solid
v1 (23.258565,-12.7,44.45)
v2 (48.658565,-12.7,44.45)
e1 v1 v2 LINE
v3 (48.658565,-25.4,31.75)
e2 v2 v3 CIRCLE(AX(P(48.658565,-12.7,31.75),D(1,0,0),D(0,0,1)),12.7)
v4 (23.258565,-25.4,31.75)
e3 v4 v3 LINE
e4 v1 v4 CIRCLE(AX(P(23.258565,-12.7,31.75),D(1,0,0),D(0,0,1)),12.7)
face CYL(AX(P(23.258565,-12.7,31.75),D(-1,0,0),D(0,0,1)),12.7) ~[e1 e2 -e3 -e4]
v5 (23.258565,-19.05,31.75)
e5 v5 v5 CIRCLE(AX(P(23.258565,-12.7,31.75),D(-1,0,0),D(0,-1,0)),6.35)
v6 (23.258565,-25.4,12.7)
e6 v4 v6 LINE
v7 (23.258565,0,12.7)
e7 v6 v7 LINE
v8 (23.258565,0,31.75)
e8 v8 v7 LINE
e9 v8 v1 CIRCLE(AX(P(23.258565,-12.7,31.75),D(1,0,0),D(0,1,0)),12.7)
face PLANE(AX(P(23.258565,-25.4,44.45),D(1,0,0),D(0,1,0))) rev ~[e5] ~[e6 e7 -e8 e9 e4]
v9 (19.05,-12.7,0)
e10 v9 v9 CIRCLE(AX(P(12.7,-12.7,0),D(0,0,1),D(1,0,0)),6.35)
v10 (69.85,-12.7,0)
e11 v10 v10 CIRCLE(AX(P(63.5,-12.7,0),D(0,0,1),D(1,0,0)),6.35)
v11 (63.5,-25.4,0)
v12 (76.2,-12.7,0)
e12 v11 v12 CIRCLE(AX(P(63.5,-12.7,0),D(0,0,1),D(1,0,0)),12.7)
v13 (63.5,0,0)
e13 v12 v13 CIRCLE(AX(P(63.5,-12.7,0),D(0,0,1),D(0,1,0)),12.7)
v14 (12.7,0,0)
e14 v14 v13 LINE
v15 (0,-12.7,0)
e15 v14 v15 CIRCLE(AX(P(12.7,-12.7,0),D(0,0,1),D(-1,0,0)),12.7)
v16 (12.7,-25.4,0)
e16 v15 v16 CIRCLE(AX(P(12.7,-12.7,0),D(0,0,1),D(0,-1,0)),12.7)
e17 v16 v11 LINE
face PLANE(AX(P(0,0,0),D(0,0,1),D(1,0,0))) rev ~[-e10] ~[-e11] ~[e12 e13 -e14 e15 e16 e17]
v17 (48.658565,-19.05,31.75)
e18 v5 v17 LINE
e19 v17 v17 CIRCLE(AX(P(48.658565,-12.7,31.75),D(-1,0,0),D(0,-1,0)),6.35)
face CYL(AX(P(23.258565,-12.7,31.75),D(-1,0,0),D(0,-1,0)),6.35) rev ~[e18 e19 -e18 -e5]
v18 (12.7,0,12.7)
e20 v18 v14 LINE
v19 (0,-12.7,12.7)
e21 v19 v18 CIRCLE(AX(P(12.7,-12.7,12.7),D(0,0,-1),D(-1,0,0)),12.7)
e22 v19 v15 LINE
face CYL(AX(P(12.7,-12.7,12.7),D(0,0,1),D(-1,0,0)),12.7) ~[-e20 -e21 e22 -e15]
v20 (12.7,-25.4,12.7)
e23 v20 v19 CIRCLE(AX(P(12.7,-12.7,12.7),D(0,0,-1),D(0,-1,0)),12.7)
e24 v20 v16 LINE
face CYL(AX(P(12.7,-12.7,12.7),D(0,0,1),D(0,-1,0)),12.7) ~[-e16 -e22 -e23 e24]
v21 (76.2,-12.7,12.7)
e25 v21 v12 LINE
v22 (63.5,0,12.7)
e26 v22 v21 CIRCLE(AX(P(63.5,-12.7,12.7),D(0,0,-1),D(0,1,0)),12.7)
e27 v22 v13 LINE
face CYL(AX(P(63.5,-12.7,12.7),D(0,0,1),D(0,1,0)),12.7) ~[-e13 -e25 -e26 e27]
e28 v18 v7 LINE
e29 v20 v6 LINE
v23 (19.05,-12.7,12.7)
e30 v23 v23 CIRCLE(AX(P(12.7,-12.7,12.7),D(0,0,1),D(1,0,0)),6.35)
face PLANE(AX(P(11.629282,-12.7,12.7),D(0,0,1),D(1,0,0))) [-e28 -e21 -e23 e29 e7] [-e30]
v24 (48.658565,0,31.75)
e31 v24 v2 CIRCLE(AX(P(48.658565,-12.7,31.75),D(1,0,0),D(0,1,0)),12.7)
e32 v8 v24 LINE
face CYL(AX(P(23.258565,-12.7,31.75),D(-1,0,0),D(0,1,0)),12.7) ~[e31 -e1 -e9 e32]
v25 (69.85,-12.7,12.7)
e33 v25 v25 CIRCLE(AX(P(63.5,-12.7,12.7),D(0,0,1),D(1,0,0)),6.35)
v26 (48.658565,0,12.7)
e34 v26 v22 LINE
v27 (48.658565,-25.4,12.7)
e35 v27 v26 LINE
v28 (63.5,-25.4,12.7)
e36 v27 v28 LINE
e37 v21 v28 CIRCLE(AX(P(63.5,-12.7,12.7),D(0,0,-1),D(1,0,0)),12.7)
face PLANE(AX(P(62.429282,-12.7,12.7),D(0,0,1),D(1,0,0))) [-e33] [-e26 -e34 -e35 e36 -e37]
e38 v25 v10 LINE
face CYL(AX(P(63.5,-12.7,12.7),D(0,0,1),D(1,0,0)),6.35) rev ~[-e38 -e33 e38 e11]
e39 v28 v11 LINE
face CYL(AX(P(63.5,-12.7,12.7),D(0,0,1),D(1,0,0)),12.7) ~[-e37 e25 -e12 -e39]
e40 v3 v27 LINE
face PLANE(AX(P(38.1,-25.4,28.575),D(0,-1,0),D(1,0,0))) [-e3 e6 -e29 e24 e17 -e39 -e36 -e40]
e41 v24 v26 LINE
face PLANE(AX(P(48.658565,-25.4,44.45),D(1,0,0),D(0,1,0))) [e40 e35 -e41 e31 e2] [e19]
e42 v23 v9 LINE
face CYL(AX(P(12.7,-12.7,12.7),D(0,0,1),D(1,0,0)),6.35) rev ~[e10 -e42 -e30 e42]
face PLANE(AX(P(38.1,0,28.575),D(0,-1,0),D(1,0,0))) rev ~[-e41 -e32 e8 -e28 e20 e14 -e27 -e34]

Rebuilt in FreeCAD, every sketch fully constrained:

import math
import FreeCAD as App
import Part
import Sketcher
Q = App.Units.Quantity


def add_polygon(sketch, points):
    """Adds a closed chain of lines whose ends are joined by coincident constraints."""
    first, n = sketch.GeometryCount, len(points)
    for a, b in zip(points, points[1:] + points[:1]):
        sketch.addGeometry(Part.LineSegment(App.Vector(*a, 0), App.Vector(*b, 0)), False)
    for i in range(n):
        sketch.addConstraint(Sketcher.Constraint("Coincident", first + i, 2, first + (i + 1) % n, 1))

doc = App.newDocument("Part")
body = doc.addObject("PartDesign::Body", "Body")

# Sketch on XZ plane
sketch1 = doc.addObject("Sketcher::SketchObject", "Sketch")
body.addObject(sketch1)
sketch1.AttachmentSupport = (doc.XZ_Plane, [""])
sketch1.MapMode = "FlatFace"
add_polygon(sketch1, [(0, 57), (0, 0), (76, 0), (76, 57)])  # lines 0-3
sketch1.addConstraint(Sketcher.Constraint("Vertical", 0))
sketch1.addConstraint(Sketcher.Constraint("Horizontal", 1))
sketch1.addConstraint(Sketcher.Constraint("Vertical", 2))
sketch1.addConstraint(Sketcher.Constraint("Horizontal", 3))
sketch1.addConstraint(Sketcher.Constraint("Coincident", 0, 2, -1, 1))
sketch1.addConstraint(Sketcher.Constraint("DistanceX", 1, 1, 1, 2, Q("3 in")))
sketch1.addConstraint(Sketcher.Constraint("DistanceY", 0, 2, 0, 1, Q("2.25 in")))
pad1 = doc.addObject("PartDesign::Pad", "Pad")
body.addObject(pad1)
pad1.Profile = sketch1
pad1.Length = Q("1 in")

# Sketch on XZ plane
sketch2 = doc.addObject("Sketcher::SketchObject", "Sketch001")
body.addObject(sketch2)
sketch2.AttachmentSupport = (doc.XZ_Plane, [""])
sketch2.MapMode = "FlatFace"
sketch2.AttachmentOffset = App.Placement(App.Vector(0, 0, 1 * 25.4), App.Rotation())
add_polygon(sketch2, [(0, 57), (0, 44), (76, 44), (76, 57)])  # lines 0-3
sketch2.addConstraint(Sketcher.Constraint("Vertical", 0))
sketch2.addConstraint(Sketcher.Constraint("Horizontal", 1))
sketch2.addConstraint(Sketcher.Constraint("Vertical", 2))
sketch2.addConstraint(Sketcher.Constraint("Horizontal", 3))
sketch2.addConstraint(Sketcher.Constraint("PointOnObject", 0, 2, -2))
sketch2.addConstraint(Sketcher.Constraint("DistanceX", 1, 1, 1, 2, Q("3 in")))
sketch2.addConstraint(Sketcher.Constraint("DistanceY", 0, 2, 0, 1, Q("0.5 in")))
sketch2.addConstraint(Sketcher.Constraint("DistanceY", -1, 1, 0, 2, Q("1.75 in")))
pocket1 = doc.addObject("PartDesign::Pocket", "Pocket")
body.addObject(pocket1)
pocket1.Profile = sketch2
pocket1.Length = Q("1 in")

# Sketch on XY plane
sketch3 = doc.addObject("Sketcher::SketchObject", "Sketch002")
body.addObject(sketch3)
sketch3.AttachmentSupport = (doc.XY_Plane, [""])
sketch3.MapMode = "FlatFace"
sketch3.AttachmentOffset = App.Placement(App.Vector(0, 0, 1.75 * 25.4), App.Rotation())
add_polygon(sketch3, [(0, 0), (0, -25), (23, -25), (23, 0)])  # lines 0-3
add_polygon(sketch3, [(49, 0), (49, -25), (76, -25), (76, 0)])  # lines 4-7
sketch3.addConstraint(Sketcher.Constraint("Vertical", 0))
sketch3.addConstraint(Sketcher.Constraint("Horizontal", 1))
sketch3.addConstraint(Sketcher.Constraint("Vertical", 2))
sketch3.addConstraint(Sketcher.Constraint("Horizontal", 3))
sketch3.addConstraint(Sketcher.Constraint("Vertical", 4))
sketch3.addConstraint(Sketcher.Constraint("Horizontal", 5))
sketch3.addConstraint(Sketcher.Constraint("Vertical", 6))
sketch3.addConstraint(Sketcher.Constraint("Horizontal", 7))
sketch3.addConstraint(Sketcher.Constraint("Coincident", 3, 2, -1, 1))
sketch3.addConstraint(Sketcher.Constraint("PointOnObject", 6, 2, -1))
sketch3.addConstraint(Sketcher.Constraint("Horizontal", 1, 2, 4, 2))
sketch3.addConstraint(Sketcher.Constraint("DistanceY", 0, 2, 0, 1, Q("1 in")))
sketch3.addConstraint(Sketcher.Constraint("DistanceX", -1, 1, 5, 2, Q("3 in")))
sketch3.addConstraint(Sketcher.Constraint("DistanceX", 1, 2, 4, 2, Q("1 in")))
sketch3.addConstraint(Sketcher.Constraint("DistanceX", 1, 1, 1, 2, 23.258565))
pocket2 = doc.addObject("PartDesign::Pocket", "Pocket001")
body.addObject(pocket2)
pocket2.Profile = sketch3
pocket2.Length = Q("1.25 in")

# Sketch on XY plane
sketch4 = doc.addObject("Sketcher::SketchObject", "Sketch003")
body.addObject(sketch4)
sketch4.AttachmentSupport = (doc.XY_Plane, [""])
sketch4.MapMode = "FlatFace"
sketch4.AttachmentOffset = App.Placement(App.Vector(0, 0, 0.5 * 25.4), App.Rotation())
sketch4.addGeometry(Part.ArcOfCircle(Part.Circle(App.Vector(64, -13, 0), App.Vector(0, 0, 1), 13), math.radians(0), math.radians(90)), False)
sketch4.addGeometry(Part.LineSegment(App.Vector(76, -13, 0), App.Vector(76, 0, 0)), False)
sketch4.addGeometry(Part.LineSegment(App.Vector(76, 0, 0), App.Vector(64, 0, 0)), False)
sketch4.addGeometry(Part.ArcOfCircle(Part.Circle(App.Vector(64, -13, 0), App.Vector(0, 0, 1), 13), math.radians(-90), math.radians(0)), False)
sketch4.addGeometry(Part.LineSegment(App.Vector(64, -25, 0), App.Vector(76, -25, 0)), False)
sketch4.addGeometry(Part.LineSegment(App.Vector(76, -25, 0), App.Vector(76, -13, 0)), False)
sketch4.addGeometry(Part.Circle(App.Vector(64, -13, 0), App.Vector(0, 0, 1), 6), False)
sketch4.addConstraint(Sketcher.Constraint("Tangent", 0, 1, 1, 1))
sketch4.addConstraint(Sketcher.Constraint("Coincident", 1, 2, 2, 1))
sketch4.addConstraint(Sketcher.Constraint("Tangent", 2, 2, 0, 2))
sketch4.addConstraint(Sketcher.Constraint("Tangent", 3, 1, 4, 1))
sketch4.addConstraint(Sketcher.Constraint("Coincident", 4, 2, 5, 1))
sketch4.addConstraint(Sketcher.Constraint("Tangent", 5, 2, 3, 2))
sketch4.addConstraint(Sketcher.Constraint("Vertical", 1))
sketch4.addConstraint(Sketcher.Constraint("Horizontal", 2))
sketch4.addConstraint(Sketcher.Constraint("Horizontal", 4))
sketch4.addConstraint(Sketcher.Constraint("Vertical", 5))
sketch4.addConstraint(Sketcher.Constraint("Coincident", 3, 3, 0, 3))
sketch4.addConstraint(Sketcher.Constraint("Coincident", 6, 3, 0, 3))
sketch4.addConstraint(Sketcher.Constraint("Equal", 0, 3))
sketch4.addConstraint(Sketcher.Constraint("PointOnObject", 1, 2, -1))
sketch4.addConstraint(Sketcher.Constraint("Diameter", 6, Q("0.5 in")))
sketch4.addConstraint(Sketcher.Constraint("Radius", 0, Q("0.5 in")))
sketch4.addConstraint(Sketcher.Constraint("DistanceX", -1, 1, 0, 1, Q("3 in")))
pocket3 = doc.addObject("PartDesign::Pocket", "Pocket002")
body.addObject(pocket3)
pocket3.Profile = sketch4
pocket3.Length = Q("1 in")

# Sketch on XY plane
sketch5 = doc.addObject("Sketcher::SketchObject", "Sketch004")
body.addObject(sketch5)
sketch5.AttachmentSupport = (doc.XY_Plane, [""])
sketch5.MapMode = "FlatFace"
sketch5.AttachmentOffset = App.Placement(App.Vector(0, 0, 0.5 * 25.4), App.Rotation())
sketch5.addGeometry(Part.ArcOfCircle(Part.Circle(App.Vector(13, -13, 0), App.Vector(0, 0, 1), 13), math.radians(180), math.radians(270)), False)
sketch5.addGeometry(Part.LineSegment(App.Vector(0, -13, 0), App.Vector(0, -25, 0)), False)
sketch5.addGeometry(Part.LineSegment(App.Vector(0, -25, 0), App.Vector(13, -25, 0)), False)
sketch5.addGeometry(Part.ArcOfCircle(Part.Circle(App.Vector(13, -13, 0), App.Vector(0, 0, 1), 13), math.radians(90), math.radians(180)), False)
sketch5.addGeometry(Part.LineSegment(App.Vector(13, 0, 0), App.Vector(0, 0, 0)), False)
sketch5.addGeometry(Part.LineSegment(App.Vector(0, 0, 0), App.Vector(0, -13, 0)), False)
sketch5.addGeometry(Part.Circle(App.Vector(13, -13, 0), App.Vector(0, 0, 1), 6), False)
sketch5.addConstraint(Sketcher.Constraint("Tangent", 0, 1, 1, 1))
sketch5.addConstraint(Sketcher.Constraint("Coincident", 1, 2, 2, 1))
sketch5.addConstraint(Sketcher.Constraint("Tangent", 2, 2, 0, 2))
sketch5.addConstraint(Sketcher.Constraint("Tangent", 3, 1, 4, 1))
sketch5.addConstraint(Sketcher.Constraint("Coincident", 4, 2, 5, 1))
sketch5.addConstraint(Sketcher.Constraint("Tangent", 5, 2, 3, 2))
sketch5.addConstraint(Sketcher.Constraint("Vertical", 1))
sketch5.addConstraint(Sketcher.Constraint("Horizontal", 2))
sketch5.addConstraint(Sketcher.Constraint("Horizontal", 4))
sketch5.addConstraint(Sketcher.Constraint("Vertical", 5))
sketch5.addConstraint(Sketcher.Constraint("Coincident", 4, 2, -1, 1))
sketch5.addConstraint(Sketcher.Constraint("Coincident", 3, 3, 0, 3))
sketch5.addConstraint(Sketcher.Constraint("Coincident", 6, 3, 0, 3))
sketch5.addConstraint(Sketcher.Constraint("Equal", 0, 3))
sketch5.addConstraint(Sketcher.Constraint("Diameter", 6, Q("0.5 in")))
sketch5.addConstraint(Sketcher.Constraint("Radius", 0, Q("0.5 in")))
pocket4 = doc.addObject("PartDesign::Pocket", "Pocket003")
body.addObject(pocket4)
pocket4.Profile = sketch5
pocket4.Length = Q("1 in")

# Sketch on YZ plane
sketch6 = doc.addObject("Sketcher::SketchObject", "Sketch005")
body.addObject(sketch6)
sketch6.AttachmentSupport = (doc.YZ_Plane, [""])
sketch6.MapMode = "FlatFace"
sketch6.AttachmentOffset = App.Placement(App.Vector(0, 0, 23.258565), App.Rotation())
sketch6.addGeometry(Part.ArcOfCircle(Part.Circle(App.Vector(-13, 32, 0), App.Vector(0, 0, 1), 13), math.radians(0), math.radians(90)), False)
sketch6.addGeometry(Part.LineSegment(App.Vector(-13, 44, 0), App.Vector(0, 44, 0)), False)
sketch6.addGeometry(Part.LineSegment(App.Vector(0, 44, 0), App.Vector(0, 32, 0)), False)
sketch6.addGeometry(Part.ArcOfCircle(Part.Circle(App.Vector(-13, 32, 0), App.Vector(0, 0, 1), 13), math.radians(90), math.radians(180)), False)
sketch6.addGeometry(Part.LineSegment(App.Vector(-25, 32, 0), App.Vector(-25, 44, 0)), False)
sketch6.addGeometry(Part.LineSegment(App.Vector(-25, 44, 0), App.Vector(-13, 44, 0)), False)
sketch6.addGeometry(Part.Circle(App.Vector(-13, 32, 0), App.Vector(0, 0, 1), 6), False)
sketch6.addConstraint(Sketcher.Constraint("Tangent", 0, 2, 1, 1))
sketch6.addConstraint(Sketcher.Constraint("Coincident", 1, 2, 2, 1))
sketch6.addConstraint(Sketcher.Constraint("Tangent", 2, 2, 0, 1))
sketch6.addConstraint(Sketcher.Constraint("Tangent", 3, 2, 4, 1))
sketch6.addConstraint(Sketcher.Constraint("Coincident", 4, 2, 5, 1))
sketch6.addConstraint(Sketcher.Constraint("Tangent", 5, 2, 3, 1))
sketch6.addConstraint(Sketcher.Constraint("Horizontal", 1))
sketch6.addConstraint(Sketcher.Constraint("Vertical", 2))
sketch6.addConstraint(Sketcher.Constraint("Vertical", 4))
sketch6.addConstraint(Sketcher.Constraint("Horizontal", 5))
sketch6.addConstraint(Sketcher.Constraint("Coincident", 3, 3, 0, 3))
sketch6.addConstraint(Sketcher.Constraint("Coincident", 6, 3, 0, 3))
sketch6.addConstraint(Sketcher.Constraint("Equal", 0, 3))
sketch6.addConstraint(Sketcher.Constraint("PointOnObject", 1, 2, -2))
sketch6.addConstraint(Sketcher.Constraint("Diameter", 6, Q("0.5 in")))
sketch6.addConstraint(Sketcher.Constraint("Radius", 0, Q("0.5 in")))
sketch6.addConstraint(Sketcher.Constraint("DistanceY", -1, 1, 0, 3, Q("1.25 in")))
pocket5 = doc.addObject("PartDesign::Pocket", "Pocket004")
body.addObject(pocket5)
pocket5.Profile = sketch6
pocket5.Length = Q("1 in")
pocket5.Reversed = True

doc.recompute()
